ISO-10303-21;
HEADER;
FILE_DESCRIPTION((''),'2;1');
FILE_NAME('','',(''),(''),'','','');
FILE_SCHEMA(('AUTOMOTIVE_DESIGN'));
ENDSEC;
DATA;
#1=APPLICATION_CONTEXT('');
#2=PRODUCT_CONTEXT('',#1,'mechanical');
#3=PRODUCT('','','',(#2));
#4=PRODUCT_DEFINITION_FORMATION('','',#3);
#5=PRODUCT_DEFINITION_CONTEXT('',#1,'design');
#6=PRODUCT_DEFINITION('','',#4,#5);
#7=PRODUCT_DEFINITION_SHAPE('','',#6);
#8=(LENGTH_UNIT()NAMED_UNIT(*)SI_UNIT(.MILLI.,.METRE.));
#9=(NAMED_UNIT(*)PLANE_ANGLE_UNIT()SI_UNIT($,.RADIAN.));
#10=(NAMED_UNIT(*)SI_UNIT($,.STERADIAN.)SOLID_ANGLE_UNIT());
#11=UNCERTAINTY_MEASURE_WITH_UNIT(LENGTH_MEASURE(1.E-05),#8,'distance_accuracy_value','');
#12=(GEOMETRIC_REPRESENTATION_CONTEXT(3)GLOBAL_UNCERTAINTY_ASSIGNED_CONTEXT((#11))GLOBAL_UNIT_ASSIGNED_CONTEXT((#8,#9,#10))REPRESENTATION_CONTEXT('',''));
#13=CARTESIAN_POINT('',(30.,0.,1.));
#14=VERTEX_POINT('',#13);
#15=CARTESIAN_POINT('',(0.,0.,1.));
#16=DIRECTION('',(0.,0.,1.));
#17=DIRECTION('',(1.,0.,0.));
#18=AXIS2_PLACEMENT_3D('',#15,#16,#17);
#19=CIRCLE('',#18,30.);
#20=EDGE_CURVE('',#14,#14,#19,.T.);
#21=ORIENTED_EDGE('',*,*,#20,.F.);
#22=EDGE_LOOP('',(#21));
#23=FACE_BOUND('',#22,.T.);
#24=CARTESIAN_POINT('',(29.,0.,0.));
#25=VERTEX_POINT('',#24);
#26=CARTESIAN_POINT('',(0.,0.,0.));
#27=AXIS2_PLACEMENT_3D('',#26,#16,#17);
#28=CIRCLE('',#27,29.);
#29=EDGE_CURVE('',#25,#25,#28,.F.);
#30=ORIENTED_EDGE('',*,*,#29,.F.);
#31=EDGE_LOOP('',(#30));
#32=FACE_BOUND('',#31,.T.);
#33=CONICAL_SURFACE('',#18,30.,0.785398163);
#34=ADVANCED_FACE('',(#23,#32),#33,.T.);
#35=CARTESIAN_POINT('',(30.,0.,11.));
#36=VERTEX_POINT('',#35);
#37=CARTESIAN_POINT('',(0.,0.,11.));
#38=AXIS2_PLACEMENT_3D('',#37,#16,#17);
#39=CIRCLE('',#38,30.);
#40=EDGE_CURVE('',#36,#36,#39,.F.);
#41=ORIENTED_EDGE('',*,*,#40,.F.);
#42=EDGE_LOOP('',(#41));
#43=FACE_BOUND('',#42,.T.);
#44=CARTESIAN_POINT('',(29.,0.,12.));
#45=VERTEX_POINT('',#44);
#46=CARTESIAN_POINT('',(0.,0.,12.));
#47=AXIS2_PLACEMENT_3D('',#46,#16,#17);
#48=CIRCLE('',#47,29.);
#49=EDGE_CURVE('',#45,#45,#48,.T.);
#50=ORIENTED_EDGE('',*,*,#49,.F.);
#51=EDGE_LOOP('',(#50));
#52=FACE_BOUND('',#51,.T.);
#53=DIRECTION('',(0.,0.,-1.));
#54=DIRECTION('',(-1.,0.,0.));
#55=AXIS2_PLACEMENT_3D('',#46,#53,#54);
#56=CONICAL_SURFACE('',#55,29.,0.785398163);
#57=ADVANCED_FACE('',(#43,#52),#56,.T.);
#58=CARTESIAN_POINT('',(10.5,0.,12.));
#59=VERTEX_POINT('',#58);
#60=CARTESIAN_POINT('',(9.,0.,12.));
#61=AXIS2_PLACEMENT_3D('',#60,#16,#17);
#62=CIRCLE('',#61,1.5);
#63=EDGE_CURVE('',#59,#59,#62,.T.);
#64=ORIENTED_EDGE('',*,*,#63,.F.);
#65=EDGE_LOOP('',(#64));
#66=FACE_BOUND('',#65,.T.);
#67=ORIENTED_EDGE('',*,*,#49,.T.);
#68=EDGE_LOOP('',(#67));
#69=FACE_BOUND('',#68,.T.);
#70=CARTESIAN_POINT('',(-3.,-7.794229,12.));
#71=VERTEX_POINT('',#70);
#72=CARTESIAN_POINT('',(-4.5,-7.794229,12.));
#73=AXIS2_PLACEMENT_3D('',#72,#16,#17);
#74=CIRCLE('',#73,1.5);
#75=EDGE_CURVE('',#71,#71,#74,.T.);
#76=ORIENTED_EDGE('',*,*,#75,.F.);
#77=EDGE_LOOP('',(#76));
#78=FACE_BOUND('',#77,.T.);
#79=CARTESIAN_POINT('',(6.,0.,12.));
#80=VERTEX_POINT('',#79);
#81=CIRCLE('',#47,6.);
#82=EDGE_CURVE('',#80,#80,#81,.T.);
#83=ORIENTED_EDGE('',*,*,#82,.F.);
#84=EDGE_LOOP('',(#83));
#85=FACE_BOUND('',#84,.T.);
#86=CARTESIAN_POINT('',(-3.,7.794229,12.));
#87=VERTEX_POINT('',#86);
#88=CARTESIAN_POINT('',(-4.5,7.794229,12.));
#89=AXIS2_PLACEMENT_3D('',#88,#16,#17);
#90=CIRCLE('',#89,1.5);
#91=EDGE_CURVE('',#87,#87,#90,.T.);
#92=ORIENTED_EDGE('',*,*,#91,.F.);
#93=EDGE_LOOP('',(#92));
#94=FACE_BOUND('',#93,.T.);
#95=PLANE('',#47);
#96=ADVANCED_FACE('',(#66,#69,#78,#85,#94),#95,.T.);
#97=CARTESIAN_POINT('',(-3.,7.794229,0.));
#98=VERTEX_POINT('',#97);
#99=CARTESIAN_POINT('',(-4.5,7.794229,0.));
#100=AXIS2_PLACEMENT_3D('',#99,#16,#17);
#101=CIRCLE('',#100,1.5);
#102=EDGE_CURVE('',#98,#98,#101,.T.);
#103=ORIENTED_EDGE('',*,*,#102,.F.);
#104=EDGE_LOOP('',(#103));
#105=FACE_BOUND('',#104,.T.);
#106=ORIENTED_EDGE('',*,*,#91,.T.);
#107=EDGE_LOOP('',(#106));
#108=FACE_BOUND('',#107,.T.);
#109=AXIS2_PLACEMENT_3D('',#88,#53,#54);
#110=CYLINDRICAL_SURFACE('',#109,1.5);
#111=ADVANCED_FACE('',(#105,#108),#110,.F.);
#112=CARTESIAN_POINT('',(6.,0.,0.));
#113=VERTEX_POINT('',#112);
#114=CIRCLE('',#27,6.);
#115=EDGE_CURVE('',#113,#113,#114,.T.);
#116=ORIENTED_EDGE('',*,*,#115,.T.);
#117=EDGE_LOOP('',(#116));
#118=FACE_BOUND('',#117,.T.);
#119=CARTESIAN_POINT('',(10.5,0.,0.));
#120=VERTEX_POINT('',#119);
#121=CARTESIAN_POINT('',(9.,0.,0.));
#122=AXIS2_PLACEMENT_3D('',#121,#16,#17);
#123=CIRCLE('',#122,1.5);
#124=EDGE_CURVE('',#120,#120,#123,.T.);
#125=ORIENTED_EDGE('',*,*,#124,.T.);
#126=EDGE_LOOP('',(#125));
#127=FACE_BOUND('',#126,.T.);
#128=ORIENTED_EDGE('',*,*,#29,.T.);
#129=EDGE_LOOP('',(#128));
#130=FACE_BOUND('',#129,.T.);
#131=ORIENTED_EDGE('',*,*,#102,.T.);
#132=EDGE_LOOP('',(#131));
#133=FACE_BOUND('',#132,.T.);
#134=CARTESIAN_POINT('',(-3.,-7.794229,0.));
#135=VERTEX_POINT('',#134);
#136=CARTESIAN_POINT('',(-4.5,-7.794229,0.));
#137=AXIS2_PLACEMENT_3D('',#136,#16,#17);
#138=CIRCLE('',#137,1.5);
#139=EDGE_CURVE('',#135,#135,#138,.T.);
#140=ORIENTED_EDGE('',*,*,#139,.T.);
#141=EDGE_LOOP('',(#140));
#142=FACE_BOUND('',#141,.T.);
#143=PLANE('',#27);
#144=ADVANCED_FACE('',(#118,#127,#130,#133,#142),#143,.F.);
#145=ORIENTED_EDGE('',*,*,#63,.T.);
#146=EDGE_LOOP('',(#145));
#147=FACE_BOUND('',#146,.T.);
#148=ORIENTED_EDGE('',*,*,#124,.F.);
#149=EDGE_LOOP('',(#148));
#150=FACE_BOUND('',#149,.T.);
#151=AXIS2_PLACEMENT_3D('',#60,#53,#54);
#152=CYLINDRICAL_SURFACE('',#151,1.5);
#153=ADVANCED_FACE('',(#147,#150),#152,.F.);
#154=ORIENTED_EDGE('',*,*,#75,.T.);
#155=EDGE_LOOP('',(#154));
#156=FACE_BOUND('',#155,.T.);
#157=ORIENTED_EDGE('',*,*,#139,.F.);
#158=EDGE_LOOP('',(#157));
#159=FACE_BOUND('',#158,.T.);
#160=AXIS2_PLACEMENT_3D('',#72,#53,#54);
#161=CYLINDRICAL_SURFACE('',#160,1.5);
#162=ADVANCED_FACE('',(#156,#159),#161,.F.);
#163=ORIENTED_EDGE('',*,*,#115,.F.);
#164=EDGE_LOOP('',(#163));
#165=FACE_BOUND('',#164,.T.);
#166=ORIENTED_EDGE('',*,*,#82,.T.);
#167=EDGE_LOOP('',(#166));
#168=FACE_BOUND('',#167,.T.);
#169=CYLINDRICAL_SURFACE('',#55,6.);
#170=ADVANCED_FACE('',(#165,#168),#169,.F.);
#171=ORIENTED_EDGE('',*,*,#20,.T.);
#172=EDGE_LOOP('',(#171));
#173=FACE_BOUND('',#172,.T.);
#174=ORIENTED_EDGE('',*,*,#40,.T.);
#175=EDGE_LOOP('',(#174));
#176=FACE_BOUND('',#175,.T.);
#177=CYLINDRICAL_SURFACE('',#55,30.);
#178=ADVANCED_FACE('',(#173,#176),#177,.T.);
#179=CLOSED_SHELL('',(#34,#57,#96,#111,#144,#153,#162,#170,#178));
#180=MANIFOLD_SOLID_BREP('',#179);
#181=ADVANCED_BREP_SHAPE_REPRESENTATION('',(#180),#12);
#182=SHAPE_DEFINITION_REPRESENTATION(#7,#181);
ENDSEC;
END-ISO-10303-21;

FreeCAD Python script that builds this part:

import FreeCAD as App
import Part
import Sketcher


def edges_at(feature, points):
    """Names of the edges that pass closest to the given points."""
    edges = feature.Shape.Edges
    near = lambda p: min(range(len(edges)), key=lambda i: edges[i].distToShape(Part.Vertex(*p))[0])
    return sorted({f"Edge{near(p) + 1}" for p in points})

doc = App.newDocument("Part")
params = doc.addObject("Spreadsheet::Sheet", "Params")
for row, (alias, value) in enumerate([
    ("sketch1_diameter", "60 mm"),
    ("sketch1_diameter2", "3 mm"),
    ("sketch1_diameter3", "12 mm"),
    ("pad1_length", "12 mm"),
    ("chamfer_size", "1 mm"),
], start=1):
    params.set(f"A{row}", alias)
    params.set(f"B{row}", "=" + value)
    params.setAlias(f"B{row}", alias)

body = doc.addObject("PartDesign::Body", "Body")

sketch1 = doc.addObject("Sketcher::SketchObject", "Sketch")
body.addObject(sketch1)
sketch1.AttachmentSupport = (doc.XY_Plane, [""])
sketch1.MapMode = "FlatFace"
sketch1.addGeometry([
    Part.Circle(App.Vector(0, 0, 0), App.Vector(0, 0, 1), 30),
    Part.Circle(App.Vector(-4.5, -7.8, 0), App.Vector(0, 0, 1), 1.5),
    Part.Circle(App.Vector(0, 0, 0), App.Vector(0, 0, 1), 6),
    Part.Circle(App.Vector(-4.5, 7.8, 0), App.Vector(0, 0, 1), 1.5),
    Part.Circle(App.Vector(9, 0, 0), App.Vector(0, 0, 1), 1.5),
], False)
sketch1.addConstraint([
    Sketcher.Constraint("Coincident", 0, 3, -1, 1),
    Sketcher.Constraint("Coincident", 2, 3, -1, 1),
    Sketcher.Constraint("Equal", 1, 3),
    Sketcher.Constraint("Equal", 3, 4),
    Sketcher.Constraint("Symmetric", 1, 3, 3, 3, -1),
    Sketcher.Constraint("PointOnObject", 4, 3, -1),
    Sketcher.Constraint("Diameter", 0, 60.0),
    Sketcher.Constraint("Diameter", 1, 3.0),
    Sketcher.Constraint("Diameter", 2, 12.0),
    Sketcher.Constraint("DistanceX", -1, 1, 4, 3, 9.0),
    Sketcher.Constraint("DistanceX", 1, 3, -1, 1, 4.5),
    Sketcher.Constraint("DistanceY", 1, 3, -1, 1, 7.794229),
])
sketch1.setExpression("Constraints[6]", "Params.sketch1_diameter")
sketch1.setExpression("Constraints[7]", "Params.sketch1_diameter2")
sketch1.setExpression("Constraints[8]", "Params.sketch1_diameter3")
pad1 = doc.addObject("PartDesign::Pad", "Pad")
body.addObject(pad1)
pad1.Profile = sketch1
pad1.setExpression("Length", "Params.pad1_length")
doc.recompute()

chamfer = doc.addObject("PartDesign::Chamfer", "Chamfer")
body.addObject(chamfer)
chamfer.Base = (pad1, edges_at(pad1, [(-30, 0, 0), (-30, 0, 12)]))
chamfer.setExpression("Size", "Params.chamfer_size")

doc.recompute()
